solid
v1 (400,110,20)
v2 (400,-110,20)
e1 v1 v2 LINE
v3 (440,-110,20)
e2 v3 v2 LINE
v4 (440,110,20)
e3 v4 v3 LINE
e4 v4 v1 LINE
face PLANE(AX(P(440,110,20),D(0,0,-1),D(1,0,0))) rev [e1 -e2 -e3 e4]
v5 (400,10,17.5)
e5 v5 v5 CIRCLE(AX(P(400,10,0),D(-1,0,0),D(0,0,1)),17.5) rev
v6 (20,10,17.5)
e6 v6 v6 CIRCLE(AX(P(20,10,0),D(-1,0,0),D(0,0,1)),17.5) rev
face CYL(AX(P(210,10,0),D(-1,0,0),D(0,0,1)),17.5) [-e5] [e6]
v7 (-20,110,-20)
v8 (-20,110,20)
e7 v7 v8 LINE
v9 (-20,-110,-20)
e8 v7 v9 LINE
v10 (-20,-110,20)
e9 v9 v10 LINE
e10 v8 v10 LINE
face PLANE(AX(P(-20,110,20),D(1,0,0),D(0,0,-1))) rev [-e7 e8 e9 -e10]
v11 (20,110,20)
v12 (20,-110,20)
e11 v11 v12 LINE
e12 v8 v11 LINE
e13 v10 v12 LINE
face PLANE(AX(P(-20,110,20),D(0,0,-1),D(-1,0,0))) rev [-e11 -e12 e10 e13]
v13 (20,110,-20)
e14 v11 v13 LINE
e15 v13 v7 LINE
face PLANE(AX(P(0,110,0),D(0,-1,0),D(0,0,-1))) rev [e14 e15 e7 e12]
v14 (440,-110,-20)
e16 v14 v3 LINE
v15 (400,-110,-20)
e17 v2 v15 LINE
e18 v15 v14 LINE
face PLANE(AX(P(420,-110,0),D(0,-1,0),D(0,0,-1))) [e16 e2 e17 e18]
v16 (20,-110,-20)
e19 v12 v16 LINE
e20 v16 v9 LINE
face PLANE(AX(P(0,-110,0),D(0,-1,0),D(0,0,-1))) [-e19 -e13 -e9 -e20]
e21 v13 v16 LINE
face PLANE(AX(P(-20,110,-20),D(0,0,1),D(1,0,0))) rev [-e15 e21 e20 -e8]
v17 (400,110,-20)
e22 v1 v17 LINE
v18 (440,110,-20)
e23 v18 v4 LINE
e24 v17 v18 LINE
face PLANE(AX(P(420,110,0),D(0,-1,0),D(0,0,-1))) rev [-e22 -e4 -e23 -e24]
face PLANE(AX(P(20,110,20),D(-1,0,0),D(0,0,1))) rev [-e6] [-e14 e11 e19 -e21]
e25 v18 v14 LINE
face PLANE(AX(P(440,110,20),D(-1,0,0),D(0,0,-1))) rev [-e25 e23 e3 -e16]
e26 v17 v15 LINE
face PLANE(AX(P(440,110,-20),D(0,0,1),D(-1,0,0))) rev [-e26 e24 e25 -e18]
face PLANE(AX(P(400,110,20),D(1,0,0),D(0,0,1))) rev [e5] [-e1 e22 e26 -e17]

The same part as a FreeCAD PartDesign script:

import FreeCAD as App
import Part
import Sketcher
from FreeCAD import Vector


def add_polygon(sketch, points):
    """Adds a closed chain of lines whose ends are joined by coincident constraints."""
    first, n = sketch.GeometryCount, len(points)
    for a, b in zip(points, points[1:] + points[:1]):
        sketch.addGeometry(Part.LineSegment(App.Vector(*a, 0), App.Vector(*b, 0)), False)
    for i in range(n):
        sketch.addConstraint(Sketcher.Constraint("Coincident", first + i, 2, first + (i + 1) % n, 1))

doc = App.newDocument("Part")
body = doc.addObject("PartDesign::Body", "Body")

# Sketch on XZ plane
sketch1 = body.newObject("Sketcher::SketchObject", "Sketch")
sketch1.AttachmentSupport = (doc.getObject("XZ_Plane"), [""])
sketch1.MapMode = "FlatFace"
add_polygon(sketch1, [(-20, -20), (-20, 20), (20, 20), (20, -20)])  # lines 0-3
sketch1.addConstraint(Sketcher.Constraint("Vertical", 0))
sketch1.addConstraint(Sketcher.Constraint("Horizontal", 1))
sketch1.addConstraint(Sketcher.Constraint("Vertical", 2))
sketch1.addConstraint(Sketcher.Constraint("Horizontal", 3))
sketch1.addConstraint(Sketcher.Constraint("Symmetric", 0, 2, 2, 2, -1, 1))
sketch1.addConstraint(Sketcher.Constraint("Equal", 3, 0))
sketch1.addConstraint(Sketcher.Constraint("DistanceX", 1, 1, 1, 2, 40.0))
pad1 = body.newObject("PartDesign::Pad", "Pad")
pad1.Profile = sketch1
pad1.Length = 220
pad1.Midplane = True

# Sketch on YZ plane
sketch2 = body.newObject("Sketcher::SketchObject", "Sketch001")
sketch2.AttachmentSupport = (doc.getObject("YZ_Plane"), [""])
sketch2.MapMode = "FlatFace"
sketch2.addGeometry(Part.Circle(Vector(10, 0, 0), Vector(0, 0, 1), 18), False)
sketch2.addConstraint(Sketcher.Constraint("PointOnObject", 0, 3, -1))
sketch2.addConstraint(Sketcher.Constraint("Diameter", 0, 35.0))
sketch2.addConstraint(Sketcher.Constraint("DistanceX", -1, 1, 0, 3, 10.0))
pad2 = body.newObject("PartDesign::Pad", "Pad001")
pad2.Profile = sketch2
pad2.Length = 210
body2 = doc.addObject("PartDesign::Body", "Body001")
doc.recompute()

body2.BaseFeature = body
doc.recompute()

mirroring = doc.addObject("Part::Mirroring", "Mirroring")
mirroring.Source = body
mirroring.Base = Vector(210, 10, 0)
mirroring.Normal = Vector(1, 0, 0)
body3 = doc.addObject("PartDesign::Body", "Body002")
body3.BaseFeature = mirroring
boolean = body2.newObject("PartDesign::Boolean", "Boolean")
boolean.Type = "Fuse"
boolean.addObjects([body3])
doc.recompute()
mirroring.Visibility = False

doc.recompute()
